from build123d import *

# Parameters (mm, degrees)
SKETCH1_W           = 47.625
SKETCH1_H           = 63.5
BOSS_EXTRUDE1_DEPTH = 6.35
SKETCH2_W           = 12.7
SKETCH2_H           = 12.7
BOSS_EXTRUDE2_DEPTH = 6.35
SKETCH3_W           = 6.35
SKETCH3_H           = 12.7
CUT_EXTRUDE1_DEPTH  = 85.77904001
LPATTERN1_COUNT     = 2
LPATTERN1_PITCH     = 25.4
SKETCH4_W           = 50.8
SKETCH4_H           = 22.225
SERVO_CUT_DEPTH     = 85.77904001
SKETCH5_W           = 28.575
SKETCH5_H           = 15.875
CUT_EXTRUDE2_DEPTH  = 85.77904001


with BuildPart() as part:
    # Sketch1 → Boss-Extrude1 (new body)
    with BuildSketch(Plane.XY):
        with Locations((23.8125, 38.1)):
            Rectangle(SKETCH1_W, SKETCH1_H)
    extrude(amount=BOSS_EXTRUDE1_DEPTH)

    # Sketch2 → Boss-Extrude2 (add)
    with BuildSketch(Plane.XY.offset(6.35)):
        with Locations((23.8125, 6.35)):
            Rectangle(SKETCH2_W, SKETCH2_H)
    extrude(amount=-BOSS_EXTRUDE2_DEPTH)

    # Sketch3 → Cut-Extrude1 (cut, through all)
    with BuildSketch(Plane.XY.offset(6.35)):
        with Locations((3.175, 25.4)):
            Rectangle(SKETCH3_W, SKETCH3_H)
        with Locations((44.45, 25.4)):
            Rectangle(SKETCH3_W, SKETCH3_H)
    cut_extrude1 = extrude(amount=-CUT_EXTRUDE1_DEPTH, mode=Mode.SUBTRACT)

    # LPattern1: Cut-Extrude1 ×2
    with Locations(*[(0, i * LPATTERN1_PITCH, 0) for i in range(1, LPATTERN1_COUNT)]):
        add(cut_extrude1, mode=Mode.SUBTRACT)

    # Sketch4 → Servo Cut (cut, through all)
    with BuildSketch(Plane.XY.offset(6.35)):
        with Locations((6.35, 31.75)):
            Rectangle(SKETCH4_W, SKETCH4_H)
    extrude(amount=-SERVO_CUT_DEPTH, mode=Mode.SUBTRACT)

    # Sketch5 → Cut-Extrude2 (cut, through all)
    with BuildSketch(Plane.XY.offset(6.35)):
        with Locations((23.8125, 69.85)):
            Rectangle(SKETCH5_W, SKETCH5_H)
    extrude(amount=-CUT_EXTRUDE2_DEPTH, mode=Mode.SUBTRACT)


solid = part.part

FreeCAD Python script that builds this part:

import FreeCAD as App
import Part
import Sketcher
Q = App.Units.Quantity

doc = App.newDocument("Part")
body = doc.addObject("PartDesign::Body", "Body")

sketch1 = doc.addObject("Sketcher::SketchObject", "Sketch")
body.addObject(sketch1)
sketch1.AttachmentSupport = (doc.XY_Plane, [""])
sketch1.MapMode = "FlatFace"
sketch1.addGeometry([
    Part.LineSegment(App.Vector(0, 70, 0), App.Vector(0, 6, 0)),
    Part.LineSegment(App.Vector(0, 6, 0), App.Vector(48, 6, 0)),
    Part.LineSegment(App.Vector(48, 6, 0), App.Vector(48, 70, 0)),
    Part.LineSegment(App.Vector(48, 70, 0), App.Vector(0, 70, 0)),
], False)
sketch1.addConstraint([
    Sketcher.Constraint("Coincident", 0, 2, 1, 1),
    Sketcher.Constraint("Coincident", 1, 2, 2, 1),
    Sketcher.Constraint("Coincident", 2, 2, 3, 1),
    Sketcher.Constraint("Coincident", 3, 2, 0, 1),
    Sketcher.Constraint("Vertical", 0),
    Sketcher.Constraint("Horizontal", 1),
    Sketcher.Constraint("Vertical", 2),
    Sketcher.Constraint("Horizontal", 3),
    Sketcher.Constraint("PointOnObject", 0, 2, -2),
    Sketcher.Constraint("DistanceY", 0, 2, 0, 1, Q("2.5 in")),
    Sketcher.Constraint("DistanceX", 1, 1, 1, 2, Q("1.875 in")),
    Sketcher.Constraint("DistanceY", -1, 1, 0, 2, Q("0.25 in")),
])
pad1 = doc.addObject("PartDesign::Pad", "Pad")
body.addObject(pad1)
pad1.Profile = sketch1
pad1.Length = Q("0.25 in")

sketch2 = doc.addObject("Sketcher::SketchObject", "Sketch001")
body.addObject(sketch2)
sketch2.AttachmentSupport = (doc.XY_Plane, [""])
sketch2.MapMode = "FlatFace"
sketch2.AttachmentOffset = App.Placement(App.Vector(0, 0, 0.25 * 25.4), App.Rotation())
sketch2.addGeometry([
    Part.LineSegment(App.Vector(17, 13, 0), App.Vector(17, 0, 0)),
    Part.LineSegment(App.Vector(17, 0, 0), App.Vector(30, 0, 0)),
    Part.LineSegment(App.Vector(30, 0, 0), App.Vector(30, 13, 0)),
    Part.LineSegment(App.Vector(30, 13, 0), App.Vector(17, 13, 0)),
], False)
sketch2.addConstraint([
    Sketcher.Constraint("Coincident", 0, 2, 1, 1),
    Sketcher.Constraint("Coincident", 1, 2, 2, 1),
    Sketcher.Constraint("Coincident", 2, 2, 3, 1),
    Sketcher.Constraint("Coincident", 3, 2, 0, 1),
    Sketcher.Constraint("Vertical", 0),
    Sketcher.Constraint("Horizontal", 1),
    Sketcher.Constraint("Vertical", 2),
    Sketcher.Constraint("Horizontal", 3),
    Sketcher.Constraint("PointOnObject", 0, 2, -1),
    Sketcher.Constraint("Equal", 3, 0),
    Sketcher.Constraint("DistanceX", 1, 1, 1, 2, Q("0.5 in")),
    Sketcher.Constraint("DistanceX", -1, 1, 0, 2, Q("0.6875 in")),
])
pad2 = doc.addObject("PartDesign::Pad", "Pad001")
body.addObject(pad2)
pad2.Profile = sketch2
pad2.Length = Q("0.25 in")
pad2.Reversed = True

sketch3 = doc.addObject("Sketcher::SketchObject", "Sketch002")
body.addObject(sketch3)
sketch3.AttachmentSupport = (doc.XY_Plane, [""])
sketch3.MapMode = "FlatFace"
sketch3.AttachmentOffset = App.Placement(App.Vector(0, 0, 0.25 * 25.4), App.Rotation())
sketch3.addGeometry([
    Part.LineSegment(App.Vector(0, 32, 0), App.Vector(0, 19, 0)),
    Part.LineSegment(App.Vector(0, 19, 0), App.Vector(6, 19, 0)),
    Part.LineSegment(App.Vector(6, 19, 0), App.Vector(6, 32, 0)),
    Part.LineSegment(App.Vector(6, 32, 0), App.Vector(0, 32, 0)),
    Part.LineSegment(App.Vector(41, 32, 0), App.Vector(41, 19, 0)),
    Part.LineSegment(App.Vector(41, 19, 0), App.Vector(48, 19, 0)),
    Part.LineSegment(App.Vector(48, 19, 0), App.Vector(48, 32, 0)),
    Part.LineSegment(App.Vector(48, 32, 0), App.Vector(41, 32, 0)),
], False)
sketch3.addConstraint([
    Sketcher.Constraint("Coincident", 0, 2, 1, 1),
    Sketcher.Constraint("Coincident", 1, 2, 2, 1),
    Sketcher.Constraint("Coincident", 2, 2, 3, 1),
    Sketcher.Constraint("Coincident", 3, 2, 0, 1),
    Sketcher.Constraint("Coincident", 4, 2, 5, 1),
    Sketcher.Constraint("Coincident", 5, 2, 6, 1),
    Sketcher.Constraint("Coincident", 6, 2, 7, 1),
    Sketcher.Constraint("Coincident", 7, 2, 4, 1),
    Sketcher.Constraint("Vertical", 0),
    Sketcher.Constraint("Horizontal", 1),
    Sketcher.Constraint("Vertical", 2),
    Sketcher.Constraint("Horizontal", 3),
    Sketcher.Constraint("Vertical", 4),
    Sketcher.Constraint("Horizontal", 5),
    Sketcher.Constraint("Vertical", 6),
    Sketcher.Constraint("Horizontal", 7),
    Sketcher.Constraint("PointOnObject", 0, 2, -2),
    Sketcher.Constraint("Horizontal", 1, 2, 4, 2),
    Sketcher.Constraint("Horizontal", 3, 2, 6, 2),
    Sketcher.Constraint("Equal", 3, 5),
    Sketcher.Constraint("DistanceY", 0, 2, 0, 1, Q("0.5 in")),
    Sketcher.Constraint("DistanceX", 1, 1, 1, 2, Q("0.25 in")),
    Sketcher.Constraint("DistanceY", -1, 1, 0, 2, Q("0.75 in")),
    Sketcher.Constraint("DistanceX", -1, 1, 4, 2, Q("1.625 in")),
])
pocket1 = doc.addObject("PartDesign::Pocket", "Pocket")
body.addObject(pocket1)
pocket1.Profile = sketch3
pocket1.Type = "ThroughAll"
doc.recompute()

linearpattern = doc.addObject("PartDesign::LinearPattern", "LinearPattern")
body.addObject(linearpattern)
linearpattern.Originals = [pocket1]
linearpattern.Direction = (doc.Y_Axis, [""])
linearpattern.Mode = "offset"
linearpattern.Offset = Q("1 in")
linearpattern.Occurrences = 2
body.Tip = linearpattern

sketch4 = doc.addObject("Sketcher::SketchObject", "Sketch003")
body.addObject(sketch4)
sketch4.AttachmentSupport = (doc.XY_Plane, [""])
sketch4.MapMode = "FlatFace"
sketch4.AttachmentOffset = App.Placement(App.Vector(0, 0, 0.25 * 25.4), App.Rotation())
sketch4.addGeometry([
    Part.LineSegment(App.Vector(-19, 43, 0), App.Vector(-19, 21, 0)),
    Part.LineSegment(App.Vector(-19, 21, 0), App.Vector(32, 21, 0)),
    Part.LineSegment(App.Vector(32, 21, 0), App.Vector(32, 43, 0)),
    Part.LineSegment(App.Vector(32, 43, 0), App.Vector(-19, 43, 0)),
], False)
sketch4.addConstraint([
    Sketcher.Constraint("Coincident", 0, 2, 1, 1),
    Sketcher.Constraint("Coincident", 1, 2, 2, 1),
    Sketcher.Constraint("Coincident", 2, 2, 3, 1),
    Sketcher.Constraint("Coincident", 3, 2, 0, 1),
    Sketcher.Constraint("Vertical", 0),
    Sketcher.Constraint("Horizontal", 1),
    Sketcher.Constraint("Vertical", 2),
    Sketcher.Constraint("Horizontal", 3),
    Sketcher.Constraint("DistanceX", 1, 1, 1, 2, Q("2 in")),
    Sketcher.Constraint("DistanceY", 0, 2, 0, 1, Q("0.875 in")),
    Sketcher.Constraint("DistanceX", 0, 2, -1, 1, Q("0.75 in")),
    Sketcher.Constraint("DistanceY", -1, 1, 0, 2, Q("0.8125 in")),
])
pocket2 = doc.addObject("PartDesign::Pocket", "Pocket001")
body.addObject(pocket2)
pocket2.Profile = sketch4
pocket2.Type = "ThroughAll"

sketch5 = doc.addObject("Sketcher::SketchObject", "Sketch004")
body.addObject(sketch5)
sketch5.AttachmentSupport = (doc.XY_Plane, [""])
sketch5.MapMode = "FlatFace"
sketch5.AttachmentOffset = App.Placement(App.Vector(0, 0, 0.25 * 25.4), App.Rotation())
sketch5.addGeometry([
    Part.LineSegment(App.Vector(10, 78, 0), App.Vector(10, 62, 0)),
    Part.LineSegment(App.Vector(10, 62, 0), App.Vector(38, 62, 0)),
    Part.LineSegment(App.Vector(38, 62, 0), App.Vector(38, 78, 0)),
    Part.LineSegment(App.Vector(38, 78, 0), App.Vector(10, 78, 0)),
], False)
sketch5.addConstraint([
    Sketcher.Constraint("Coincident", 0, 2, 1, 1),
    Sketcher.Constraint("Coincident", 1, 2, 2, 1),
    Sketcher.Constraint("Coincident", 2, 2, 3, 1),
    Sketcher.Constraint("Coincident", 3, 2, 0, 1),
    Sketcher.Constraint("Vertical", 0),
    Sketcher.Constraint("Horizontal", 1),
    Sketcher.Constraint("Vertical", 2),
    Sketcher.Constraint("Horizontal", 3),
    Sketcher.Constraint("DistanceX", -1, 1, 1, 2, Q("1.5 in")),
    Sketcher.Constraint("DistanceX", 1, 1, 1, 2, Q("1.125 in")),
    Sketcher.Constraint("DistanceY", 0, 2, 0, 1, Q("0.625 in")),
    Sketcher.Constraint("DistanceY", -1, 1, 0, 2, Q("2.4375 in")),
])
pocket3 = doc.addObject("PartDesign::Pocket", "Pocket002")
body.addObject(pocket3)
pocket3.Profile = sketch5
pocket3.Type = "ThroughAll"

doc.recompute()
